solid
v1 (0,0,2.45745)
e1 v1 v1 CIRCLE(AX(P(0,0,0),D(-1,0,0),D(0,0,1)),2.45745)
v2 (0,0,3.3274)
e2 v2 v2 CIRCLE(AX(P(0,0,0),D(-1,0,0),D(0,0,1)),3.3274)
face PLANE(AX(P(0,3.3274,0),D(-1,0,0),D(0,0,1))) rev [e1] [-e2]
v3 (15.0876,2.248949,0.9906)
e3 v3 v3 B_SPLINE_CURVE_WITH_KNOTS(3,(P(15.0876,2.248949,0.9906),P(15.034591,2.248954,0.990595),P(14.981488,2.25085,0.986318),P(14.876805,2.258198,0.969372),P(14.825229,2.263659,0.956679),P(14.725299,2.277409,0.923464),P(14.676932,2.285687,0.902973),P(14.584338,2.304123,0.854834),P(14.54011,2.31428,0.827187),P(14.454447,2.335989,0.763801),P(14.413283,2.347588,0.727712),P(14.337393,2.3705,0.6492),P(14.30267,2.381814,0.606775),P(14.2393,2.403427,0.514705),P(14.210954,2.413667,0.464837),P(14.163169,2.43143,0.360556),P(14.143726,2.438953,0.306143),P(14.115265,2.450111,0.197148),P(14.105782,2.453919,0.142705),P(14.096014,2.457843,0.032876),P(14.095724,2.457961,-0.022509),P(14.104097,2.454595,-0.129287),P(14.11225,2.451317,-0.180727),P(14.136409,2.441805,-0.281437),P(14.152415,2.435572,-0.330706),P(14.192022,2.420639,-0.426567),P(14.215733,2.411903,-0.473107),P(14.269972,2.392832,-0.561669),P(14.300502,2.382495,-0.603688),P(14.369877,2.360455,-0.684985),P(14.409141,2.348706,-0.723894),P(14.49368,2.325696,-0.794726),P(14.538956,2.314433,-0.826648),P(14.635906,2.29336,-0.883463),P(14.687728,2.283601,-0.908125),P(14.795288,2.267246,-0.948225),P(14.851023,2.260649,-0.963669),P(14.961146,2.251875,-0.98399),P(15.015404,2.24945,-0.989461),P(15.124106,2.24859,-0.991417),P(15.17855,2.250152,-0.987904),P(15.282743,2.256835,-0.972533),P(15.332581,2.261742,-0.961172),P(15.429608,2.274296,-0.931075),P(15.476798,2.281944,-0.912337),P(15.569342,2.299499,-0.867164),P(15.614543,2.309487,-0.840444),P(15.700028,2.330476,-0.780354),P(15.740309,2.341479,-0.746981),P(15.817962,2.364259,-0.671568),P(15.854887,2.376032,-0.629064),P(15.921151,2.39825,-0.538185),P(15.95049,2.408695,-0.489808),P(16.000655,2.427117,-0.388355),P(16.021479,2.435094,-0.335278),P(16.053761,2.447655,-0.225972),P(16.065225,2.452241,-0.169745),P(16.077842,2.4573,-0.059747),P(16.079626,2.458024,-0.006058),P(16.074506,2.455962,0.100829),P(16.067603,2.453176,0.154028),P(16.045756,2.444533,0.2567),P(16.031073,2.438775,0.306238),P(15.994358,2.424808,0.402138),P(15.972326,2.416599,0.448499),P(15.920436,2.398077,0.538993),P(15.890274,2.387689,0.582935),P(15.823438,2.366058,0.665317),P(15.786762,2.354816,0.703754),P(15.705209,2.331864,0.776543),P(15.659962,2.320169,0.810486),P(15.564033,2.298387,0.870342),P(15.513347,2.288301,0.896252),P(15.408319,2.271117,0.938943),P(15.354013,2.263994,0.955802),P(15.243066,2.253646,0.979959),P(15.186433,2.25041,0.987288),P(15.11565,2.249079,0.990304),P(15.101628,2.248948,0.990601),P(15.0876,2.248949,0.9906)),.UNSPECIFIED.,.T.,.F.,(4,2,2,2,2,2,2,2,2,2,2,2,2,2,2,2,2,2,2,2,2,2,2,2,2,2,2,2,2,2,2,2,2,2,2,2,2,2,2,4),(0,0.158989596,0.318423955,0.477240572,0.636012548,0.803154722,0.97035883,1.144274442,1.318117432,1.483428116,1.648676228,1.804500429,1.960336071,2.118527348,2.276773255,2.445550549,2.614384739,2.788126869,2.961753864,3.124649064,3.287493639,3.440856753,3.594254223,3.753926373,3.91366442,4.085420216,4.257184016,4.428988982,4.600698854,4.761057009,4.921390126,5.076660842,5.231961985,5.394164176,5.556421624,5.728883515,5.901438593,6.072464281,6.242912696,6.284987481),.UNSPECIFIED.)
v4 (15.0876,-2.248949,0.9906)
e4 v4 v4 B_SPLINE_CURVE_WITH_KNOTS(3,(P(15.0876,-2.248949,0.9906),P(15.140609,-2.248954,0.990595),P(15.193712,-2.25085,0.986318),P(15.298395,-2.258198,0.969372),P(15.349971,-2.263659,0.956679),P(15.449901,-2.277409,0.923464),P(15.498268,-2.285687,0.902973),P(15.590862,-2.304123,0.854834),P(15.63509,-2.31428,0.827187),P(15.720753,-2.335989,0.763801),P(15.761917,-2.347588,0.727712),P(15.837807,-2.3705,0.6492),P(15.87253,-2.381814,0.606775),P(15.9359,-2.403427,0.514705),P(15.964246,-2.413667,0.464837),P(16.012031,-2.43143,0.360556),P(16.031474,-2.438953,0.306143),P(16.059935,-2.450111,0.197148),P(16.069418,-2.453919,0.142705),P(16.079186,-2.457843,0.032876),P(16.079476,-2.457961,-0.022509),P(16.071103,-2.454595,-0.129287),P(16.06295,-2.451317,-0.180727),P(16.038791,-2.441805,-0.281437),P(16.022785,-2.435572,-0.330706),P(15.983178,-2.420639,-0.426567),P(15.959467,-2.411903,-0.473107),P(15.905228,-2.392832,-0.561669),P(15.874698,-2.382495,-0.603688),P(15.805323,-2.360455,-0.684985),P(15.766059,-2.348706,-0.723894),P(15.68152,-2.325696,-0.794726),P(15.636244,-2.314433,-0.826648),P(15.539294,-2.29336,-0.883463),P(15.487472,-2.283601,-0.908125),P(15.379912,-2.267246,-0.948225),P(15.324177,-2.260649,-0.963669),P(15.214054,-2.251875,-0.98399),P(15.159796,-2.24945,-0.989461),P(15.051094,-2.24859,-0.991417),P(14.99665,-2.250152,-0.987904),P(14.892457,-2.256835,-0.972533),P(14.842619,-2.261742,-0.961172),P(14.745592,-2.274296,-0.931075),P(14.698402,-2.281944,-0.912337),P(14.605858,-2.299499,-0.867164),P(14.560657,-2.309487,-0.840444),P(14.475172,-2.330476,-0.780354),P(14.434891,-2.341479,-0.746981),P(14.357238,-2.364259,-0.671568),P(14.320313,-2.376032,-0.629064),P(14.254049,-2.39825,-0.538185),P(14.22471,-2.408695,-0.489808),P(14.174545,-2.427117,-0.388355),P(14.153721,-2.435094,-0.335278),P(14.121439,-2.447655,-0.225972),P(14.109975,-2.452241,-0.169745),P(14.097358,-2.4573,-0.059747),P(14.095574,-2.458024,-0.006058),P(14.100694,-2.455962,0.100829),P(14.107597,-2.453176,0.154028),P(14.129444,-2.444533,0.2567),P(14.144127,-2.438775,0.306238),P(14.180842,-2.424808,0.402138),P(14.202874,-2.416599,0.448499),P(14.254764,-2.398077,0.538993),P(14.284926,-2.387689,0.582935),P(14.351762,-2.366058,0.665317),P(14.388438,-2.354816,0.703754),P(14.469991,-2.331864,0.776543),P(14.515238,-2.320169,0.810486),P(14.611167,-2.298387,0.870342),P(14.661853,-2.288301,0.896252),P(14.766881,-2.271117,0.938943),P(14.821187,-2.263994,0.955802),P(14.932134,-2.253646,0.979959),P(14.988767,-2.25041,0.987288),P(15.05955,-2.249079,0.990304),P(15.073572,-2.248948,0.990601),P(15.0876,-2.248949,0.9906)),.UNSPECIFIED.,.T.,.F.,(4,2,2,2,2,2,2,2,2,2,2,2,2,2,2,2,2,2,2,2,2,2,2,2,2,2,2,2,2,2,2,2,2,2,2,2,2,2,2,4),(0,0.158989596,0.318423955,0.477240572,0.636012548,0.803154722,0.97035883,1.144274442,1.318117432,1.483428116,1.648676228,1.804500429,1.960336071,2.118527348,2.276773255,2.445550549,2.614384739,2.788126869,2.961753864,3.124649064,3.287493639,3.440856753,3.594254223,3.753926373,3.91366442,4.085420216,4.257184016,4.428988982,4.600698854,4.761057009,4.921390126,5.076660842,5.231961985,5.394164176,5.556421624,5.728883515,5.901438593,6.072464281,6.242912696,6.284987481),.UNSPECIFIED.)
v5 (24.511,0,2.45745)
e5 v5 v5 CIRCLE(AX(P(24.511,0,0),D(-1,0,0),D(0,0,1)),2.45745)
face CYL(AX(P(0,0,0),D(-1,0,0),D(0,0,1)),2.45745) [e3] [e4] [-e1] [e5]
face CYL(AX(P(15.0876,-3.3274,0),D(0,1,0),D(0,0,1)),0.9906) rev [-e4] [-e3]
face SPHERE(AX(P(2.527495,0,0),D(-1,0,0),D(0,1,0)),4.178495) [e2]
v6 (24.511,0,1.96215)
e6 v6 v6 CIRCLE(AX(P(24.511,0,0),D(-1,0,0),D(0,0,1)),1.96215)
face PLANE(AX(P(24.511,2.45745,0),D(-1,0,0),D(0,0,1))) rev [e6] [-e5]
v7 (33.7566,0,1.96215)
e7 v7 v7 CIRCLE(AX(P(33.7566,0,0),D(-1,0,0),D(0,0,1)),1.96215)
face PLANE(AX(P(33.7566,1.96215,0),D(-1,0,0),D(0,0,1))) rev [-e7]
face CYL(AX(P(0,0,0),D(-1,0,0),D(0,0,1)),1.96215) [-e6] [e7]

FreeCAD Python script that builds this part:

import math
import FreeCAD as App
import Part
import Sketcher
Q = App.Units.Quantity

doc = App.newDocument("Part")
params = doc.addObject("Spreadsheet::Sheet", "Params")
for row, (alias, value) in enumerate([
    ("sketch1_width", "1.394 in"),
    ("sketch1_width2", "0.364 in"),
    ("sketch1_width3", "0.965 in"),
    ("revolution_angle", "360 deg"),
    ("sketch2_diameter", "0.078 in"),
], start=1):
    params.set(f"A{row}", alias)
    params.set(f"B{row}", "=" + value)
    params.setAlias(f"B{row}", alias)

body = doc.addObject("PartDesign::Body", "Body")

sketch1 = doc.addObject("Sketcher::SketchObject", "Sketch")
body.addObject(sketch1)
sketch1.AttachmentSupport = (doc.XY_Plane, [""])
sketch1.MapMode = "FlatFace"
sketch1.addGeometry([
    Part.LineSegment(App.Vector(0, 2.46, 0), App.Vector(0, 3.33, 0)),
    Part.ArcOfCircle(Part.Circle(App.Vector(2.53, 0, 0), App.Vector(0, 0, 1), 4.18), math.radians(127), math.radians(180)),
    Part.LineSegment(App.Vector(-1.65, 0, 0), App.Vector(33.76, 0, 0)),
    Part.LineSegment(App.Vector(33.76, 0, 0), App.Vector(33.76, 1.96, 0)),
    Part.LineSegment(App.Vector(33.76, 1.96, 0), App.Vector(24.51, 1.96, 0)),
    Part.LineSegment(App.Vector(24.51, 1.96, 0), App.Vector(24.51, 2.46, 0)),
    Part.LineSegment(App.Vector(24.51, 2.46, 0), App.Vector(0, 2.46, 0)),
], False)
sketch1.addConstraint([
    Sketcher.Constraint("Coincident", 0, 2, 1, 1),
    Sketcher.Constraint("Coincident", 1, 2, 2, 1),
    Sketcher.Constraint("Coincident", 2, 2, 3, 1),
    Sketcher.Constraint("Coincident", 3, 2, 4, 1),
    Sketcher.Constraint("Coincident", 4, 2, 5, 1),
    Sketcher.Constraint("Coincident", 5, 2, 6, 1),
    Sketcher.Constraint("Coincident", 6, 2, 0, 1),
    Sketcher.Constraint("Vertical", 0),
    Sketcher.Constraint("Horizontal", 2),
    Sketcher.Constraint("Vertical", 3),
    Sketcher.Constraint("Horizontal", 4),
    Sketcher.Constraint("Vertical", 5),
    Sketcher.Constraint("Horizontal", 6),
    Sketcher.Constraint("PointOnObject", 1, 3, -1),
    Sketcher.Constraint("PointOnObject", 0, 2, -2),
    Sketcher.Constraint("PointOnObject", 1, 2, -1),
    Sketcher.Constraint("DistanceX", 2, 1, 2, 2, Q("1.394 in")),
    Sketcher.Constraint("DistanceX", 4, 2, 4, 1, Q("0.364 in")),
    Sketcher.Constraint("DistanceX", 6, 2, 6, 1, Q("0.965 in")),
    Sketcher.Constraint("DistanceY", 5, 1, 5, 2, Q("0.0195 in")),
    Sketcher.Constraint("DistanceY", -1, 1, 0, 2, Q("0.131 in")),
    Sketcher.Constraint("DistanceY", 0, 1, 0, 2, 0.86995),
])
sketch1.setExpression("Constraints[16]", "Params.sketch1_width")
sketch1.setExpression("Constraints[17]", "Params.sketch1_width2")
sketch1.setExpression("Constraints[18]", "Params.sketch1_width3")
revolution = doc.addObject("PartDesign::Revolution", "Revolution")
body.addObject(revolution)
revolution.Profile = sketch1
revolution.ReferenceAxis = (sketch1, ["H_Axis"])
revolution.setExpression("Angle", "Params.revolution_angle")

sketch2 = doc.addObject("Sketcher::SketchObject", "Sketch001")
body.addObject(sketch2)
sketch2.AttachmentSupport = (doc.XZ_Plane, [""])
sketch2.MapMode = "FlatFace"
sketch2.addGeometry(Part.Circle(App.Vector(15.1, 0, 0), App.Vector(0, 0, 1), 1), False)
sketch2.addConstraint([
    Sketcher.Constraint("PointOnObject", 0, 3, -1),
    Sketcher.Constraint("Diameter", 0, Q("0.078 in")),
    Sketcher.Constraint("DistanceX", -1, 1, 0, 3, Q("0.594 in")),
])
sketch2.setExpression("Constraints[1]", "Params.sketch2_diameter")
pocket1 = doc.addObject("PartDesign::Pocket", "Pocket")
body.addObject(pocket1)
pocket1.Profile = sketch2
pocket1.Type = "ThroughAll"
pocket1.Midplane = True

doc.recompute()
